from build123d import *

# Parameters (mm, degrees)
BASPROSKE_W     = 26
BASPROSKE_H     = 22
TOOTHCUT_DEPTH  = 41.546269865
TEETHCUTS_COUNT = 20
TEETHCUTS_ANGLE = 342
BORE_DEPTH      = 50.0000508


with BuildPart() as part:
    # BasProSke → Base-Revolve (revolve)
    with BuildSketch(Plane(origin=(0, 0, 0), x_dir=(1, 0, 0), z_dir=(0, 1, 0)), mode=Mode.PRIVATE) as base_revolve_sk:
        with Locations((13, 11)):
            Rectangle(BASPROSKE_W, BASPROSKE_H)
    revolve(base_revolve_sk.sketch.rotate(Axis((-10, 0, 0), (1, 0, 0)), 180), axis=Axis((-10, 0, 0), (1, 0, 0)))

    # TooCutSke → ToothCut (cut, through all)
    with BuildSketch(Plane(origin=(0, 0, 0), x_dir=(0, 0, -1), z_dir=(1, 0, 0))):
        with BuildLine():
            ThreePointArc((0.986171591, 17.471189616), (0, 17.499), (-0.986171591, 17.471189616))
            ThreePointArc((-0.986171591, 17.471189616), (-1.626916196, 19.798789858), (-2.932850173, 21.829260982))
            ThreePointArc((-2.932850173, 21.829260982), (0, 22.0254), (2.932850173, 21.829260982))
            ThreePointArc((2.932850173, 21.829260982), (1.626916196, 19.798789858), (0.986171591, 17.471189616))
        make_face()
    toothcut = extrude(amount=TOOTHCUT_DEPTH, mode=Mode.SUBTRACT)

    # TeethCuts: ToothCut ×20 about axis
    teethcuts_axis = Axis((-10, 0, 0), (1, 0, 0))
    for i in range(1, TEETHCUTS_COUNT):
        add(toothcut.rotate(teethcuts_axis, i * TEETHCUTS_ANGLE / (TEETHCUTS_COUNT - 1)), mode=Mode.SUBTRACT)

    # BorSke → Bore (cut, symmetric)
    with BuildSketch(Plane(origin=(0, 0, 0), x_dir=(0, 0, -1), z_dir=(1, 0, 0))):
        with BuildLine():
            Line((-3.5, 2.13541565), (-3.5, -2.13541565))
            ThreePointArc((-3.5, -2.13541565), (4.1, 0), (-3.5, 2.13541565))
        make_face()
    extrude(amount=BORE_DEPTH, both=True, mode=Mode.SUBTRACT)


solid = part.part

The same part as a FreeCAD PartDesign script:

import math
import FreeCAD as App
import Part
import Sketcher
from FreeCAD import Vector
Q = App.Units.Quantity


def add_polygon(sketch, points):
    """Adds a closed chain of lines whose ends are joined by coincident constraints."""
    first, n = sketch.GeometryCount, len(points)
    for a, b in zip(points, points[1:] + points[:1]):
        sketch.addGeometry(Part.LineSegment(App.Vector(*a, 0), App.Vector(*b, 0)), False)
    for i in range(n):
        sketch.addConstraint(Sketcher.Constraint("Coincident", first + i, 2, first + (i + 1) % n, 1))

doc = App.newDocument("Part")
body = doc.addObject("PartDesign::Body", "Body")

sketch1 = body.newObject("Sketcher::SketchObject", "Sketch")
sketch1.AttachmentSupport = (doc.getObject("XZ_Plane"), [""])
sketch1.MapMode = "FlatFace"
add_polygon(sketch1, [(0, -22), (0, 0), (26, 0), (26, -22)])
sketch1.addConstraint([
    Sketcher.Constraint("Vertical", 0),
    Sketcher.Constraint("Horizontal", 1),
    Sketcher.Constraint("Vertical", 2),
    Sketcher.Constraint("Horizontal", 3),
    Sketcher.Constraint("Coincident", 0, 2, -1, 1),
    Sketcher.Constraint("DistanceX", 1, 1, 1, 2, Q("26 mm")),
    Sketcher.Constraint("DistanceY", 0, 1, 0, 2, Q("22 mm")),
])
revolution = body.newObject("PartDesign::Revolution", "Revolution")
revolution.Profile = sketch1
revolution.ReferenceAxis = (sketch1, ["H_Axis"])
revolution.Angle = 360

sketch2 = body.newObject("Sketcher::SketchObject", "Sketch001")
sketch2.AttachmentSupport = (doc.getObject("YZ_Plane"), [""])
sketch2.MapMode = "FlatFace"
sketch2.addGeometry([
    Part.ArcOfCircle(Part.Circle(Vector(0, 0, 0), Vector(0, 0, 1), 17.5), math.radians(-3.23), math.radians(3.23)),
    Part.ArcOfCircle(Part.Circle(Vector(16.5, -8.9, 0), Vector(0, 0, 1), 8), math.radians(49), math.radians(83)),
    Part.ArcOfCircle(Part.Circle(Vector(0, 0, 0), Vector(0, 0, 1), 22), math.radians(-7.65), math.radians(7.65)),
    Part.ArcOfCircle(Part.Circle(Vector(16.5, 8.9, 0), Vector(0, 0, 1), 8), math.radians(-83), math.radians(-49)),
], False)
sketch2.addConstraint([
    Sketcher.Constraint("Coincident", 0, 1, 1, 2),
    Sketcher.Constraint("Coincident", 1, 1, 2, 1),
    Sketcher.Constraint("Coincident", 2, 2, 3, 2),
    Sketcher.Constraint("Coincident", 3, 1, 0, 2),
    Sketcher.Constraint("Coincident", 0, 3, -1, 1),
    Sketcher.Constraint("Coincident", 2, 3, -1, 1),
    Sketcher.Constraint("Equal", 1, 3),
    Sketcher.Constraint("Symmetric", 1, 3, 3, 3, -1),
    Sketcher.Constraint("Radius", 1, Q("8 mm")),
    Sketcher.Constraint("Radius", 0, Q("17.499 mm")),
    Sketcher.Constraint("Radius", 2, Q("22.0254 mm")),
    Sketcher.Constraint("DistanceY", 1, 1, 2, 2, Q("5.8657 mm")),
    Sketcher.Constraint("DistanceX", -1, 1, 1, 3, Q("16.536031 mm")),
])
pocket1 = body.newObject("PartDesign::Pocket", "Pocket")
pocket1.Profile = sketch2
pocket1.Type = "ThroughAll"
pocket1.Reversed = True
doc.recompute()

polarpattern = body.newObject("PartDesign::PolarPattern", "PolarPattern")
polarpattern.Originals = [pocket1]
polarpattern.Axis = (doc.getObject("X_Axis"), [""])
polarpattern.Angle = 360
polarpattern.Occurrences = 20
body.Tip = polarpattern

sketch3 = body.newObject("Sketcher::SketchObject", "Sketch002")
sketch3.AttachmentSupport = (doc.getObject("YZ_Plane"), [""])
sketch3.MapMode = "FlatFace"
sketch3.addGeometry([
    Part.LineSegment(Vector(2.1, 3.5, 0), Vector(-2.1, 3.5, 0)),
    Part.ArcOfCircle(Part.Circle(Vector(0, 0, 0), Vector(0, 0, 1), 4.1), math.radians(121), math.radians(419)),
], False)
sketch3.addConstraint([
    Sketcher.Constraint("Coincident", 0, 1, 1, 2),
    Sketcher.Constraint("Coincident", 1, 1, 0, 2),
    Sketcher.Constraint("Horizontal", 0),
    Sketcher.Constraint("Coincident", 1, 3, -1, 1),
    Sketcher.Constraint("Radius", 1, Q("4.1 mm")),
    Sketcher.Constraint("DistanceY", -1, 1, 0, 1, Q("3.5 mm")),
])
pocket2 = body.newObject("PartDesign::Pocket", "Pocket001")
pocket2.Profile = sketch3
pocket2.Length = 100.000102
pocket2.Midplane = True

doc.recompute()
